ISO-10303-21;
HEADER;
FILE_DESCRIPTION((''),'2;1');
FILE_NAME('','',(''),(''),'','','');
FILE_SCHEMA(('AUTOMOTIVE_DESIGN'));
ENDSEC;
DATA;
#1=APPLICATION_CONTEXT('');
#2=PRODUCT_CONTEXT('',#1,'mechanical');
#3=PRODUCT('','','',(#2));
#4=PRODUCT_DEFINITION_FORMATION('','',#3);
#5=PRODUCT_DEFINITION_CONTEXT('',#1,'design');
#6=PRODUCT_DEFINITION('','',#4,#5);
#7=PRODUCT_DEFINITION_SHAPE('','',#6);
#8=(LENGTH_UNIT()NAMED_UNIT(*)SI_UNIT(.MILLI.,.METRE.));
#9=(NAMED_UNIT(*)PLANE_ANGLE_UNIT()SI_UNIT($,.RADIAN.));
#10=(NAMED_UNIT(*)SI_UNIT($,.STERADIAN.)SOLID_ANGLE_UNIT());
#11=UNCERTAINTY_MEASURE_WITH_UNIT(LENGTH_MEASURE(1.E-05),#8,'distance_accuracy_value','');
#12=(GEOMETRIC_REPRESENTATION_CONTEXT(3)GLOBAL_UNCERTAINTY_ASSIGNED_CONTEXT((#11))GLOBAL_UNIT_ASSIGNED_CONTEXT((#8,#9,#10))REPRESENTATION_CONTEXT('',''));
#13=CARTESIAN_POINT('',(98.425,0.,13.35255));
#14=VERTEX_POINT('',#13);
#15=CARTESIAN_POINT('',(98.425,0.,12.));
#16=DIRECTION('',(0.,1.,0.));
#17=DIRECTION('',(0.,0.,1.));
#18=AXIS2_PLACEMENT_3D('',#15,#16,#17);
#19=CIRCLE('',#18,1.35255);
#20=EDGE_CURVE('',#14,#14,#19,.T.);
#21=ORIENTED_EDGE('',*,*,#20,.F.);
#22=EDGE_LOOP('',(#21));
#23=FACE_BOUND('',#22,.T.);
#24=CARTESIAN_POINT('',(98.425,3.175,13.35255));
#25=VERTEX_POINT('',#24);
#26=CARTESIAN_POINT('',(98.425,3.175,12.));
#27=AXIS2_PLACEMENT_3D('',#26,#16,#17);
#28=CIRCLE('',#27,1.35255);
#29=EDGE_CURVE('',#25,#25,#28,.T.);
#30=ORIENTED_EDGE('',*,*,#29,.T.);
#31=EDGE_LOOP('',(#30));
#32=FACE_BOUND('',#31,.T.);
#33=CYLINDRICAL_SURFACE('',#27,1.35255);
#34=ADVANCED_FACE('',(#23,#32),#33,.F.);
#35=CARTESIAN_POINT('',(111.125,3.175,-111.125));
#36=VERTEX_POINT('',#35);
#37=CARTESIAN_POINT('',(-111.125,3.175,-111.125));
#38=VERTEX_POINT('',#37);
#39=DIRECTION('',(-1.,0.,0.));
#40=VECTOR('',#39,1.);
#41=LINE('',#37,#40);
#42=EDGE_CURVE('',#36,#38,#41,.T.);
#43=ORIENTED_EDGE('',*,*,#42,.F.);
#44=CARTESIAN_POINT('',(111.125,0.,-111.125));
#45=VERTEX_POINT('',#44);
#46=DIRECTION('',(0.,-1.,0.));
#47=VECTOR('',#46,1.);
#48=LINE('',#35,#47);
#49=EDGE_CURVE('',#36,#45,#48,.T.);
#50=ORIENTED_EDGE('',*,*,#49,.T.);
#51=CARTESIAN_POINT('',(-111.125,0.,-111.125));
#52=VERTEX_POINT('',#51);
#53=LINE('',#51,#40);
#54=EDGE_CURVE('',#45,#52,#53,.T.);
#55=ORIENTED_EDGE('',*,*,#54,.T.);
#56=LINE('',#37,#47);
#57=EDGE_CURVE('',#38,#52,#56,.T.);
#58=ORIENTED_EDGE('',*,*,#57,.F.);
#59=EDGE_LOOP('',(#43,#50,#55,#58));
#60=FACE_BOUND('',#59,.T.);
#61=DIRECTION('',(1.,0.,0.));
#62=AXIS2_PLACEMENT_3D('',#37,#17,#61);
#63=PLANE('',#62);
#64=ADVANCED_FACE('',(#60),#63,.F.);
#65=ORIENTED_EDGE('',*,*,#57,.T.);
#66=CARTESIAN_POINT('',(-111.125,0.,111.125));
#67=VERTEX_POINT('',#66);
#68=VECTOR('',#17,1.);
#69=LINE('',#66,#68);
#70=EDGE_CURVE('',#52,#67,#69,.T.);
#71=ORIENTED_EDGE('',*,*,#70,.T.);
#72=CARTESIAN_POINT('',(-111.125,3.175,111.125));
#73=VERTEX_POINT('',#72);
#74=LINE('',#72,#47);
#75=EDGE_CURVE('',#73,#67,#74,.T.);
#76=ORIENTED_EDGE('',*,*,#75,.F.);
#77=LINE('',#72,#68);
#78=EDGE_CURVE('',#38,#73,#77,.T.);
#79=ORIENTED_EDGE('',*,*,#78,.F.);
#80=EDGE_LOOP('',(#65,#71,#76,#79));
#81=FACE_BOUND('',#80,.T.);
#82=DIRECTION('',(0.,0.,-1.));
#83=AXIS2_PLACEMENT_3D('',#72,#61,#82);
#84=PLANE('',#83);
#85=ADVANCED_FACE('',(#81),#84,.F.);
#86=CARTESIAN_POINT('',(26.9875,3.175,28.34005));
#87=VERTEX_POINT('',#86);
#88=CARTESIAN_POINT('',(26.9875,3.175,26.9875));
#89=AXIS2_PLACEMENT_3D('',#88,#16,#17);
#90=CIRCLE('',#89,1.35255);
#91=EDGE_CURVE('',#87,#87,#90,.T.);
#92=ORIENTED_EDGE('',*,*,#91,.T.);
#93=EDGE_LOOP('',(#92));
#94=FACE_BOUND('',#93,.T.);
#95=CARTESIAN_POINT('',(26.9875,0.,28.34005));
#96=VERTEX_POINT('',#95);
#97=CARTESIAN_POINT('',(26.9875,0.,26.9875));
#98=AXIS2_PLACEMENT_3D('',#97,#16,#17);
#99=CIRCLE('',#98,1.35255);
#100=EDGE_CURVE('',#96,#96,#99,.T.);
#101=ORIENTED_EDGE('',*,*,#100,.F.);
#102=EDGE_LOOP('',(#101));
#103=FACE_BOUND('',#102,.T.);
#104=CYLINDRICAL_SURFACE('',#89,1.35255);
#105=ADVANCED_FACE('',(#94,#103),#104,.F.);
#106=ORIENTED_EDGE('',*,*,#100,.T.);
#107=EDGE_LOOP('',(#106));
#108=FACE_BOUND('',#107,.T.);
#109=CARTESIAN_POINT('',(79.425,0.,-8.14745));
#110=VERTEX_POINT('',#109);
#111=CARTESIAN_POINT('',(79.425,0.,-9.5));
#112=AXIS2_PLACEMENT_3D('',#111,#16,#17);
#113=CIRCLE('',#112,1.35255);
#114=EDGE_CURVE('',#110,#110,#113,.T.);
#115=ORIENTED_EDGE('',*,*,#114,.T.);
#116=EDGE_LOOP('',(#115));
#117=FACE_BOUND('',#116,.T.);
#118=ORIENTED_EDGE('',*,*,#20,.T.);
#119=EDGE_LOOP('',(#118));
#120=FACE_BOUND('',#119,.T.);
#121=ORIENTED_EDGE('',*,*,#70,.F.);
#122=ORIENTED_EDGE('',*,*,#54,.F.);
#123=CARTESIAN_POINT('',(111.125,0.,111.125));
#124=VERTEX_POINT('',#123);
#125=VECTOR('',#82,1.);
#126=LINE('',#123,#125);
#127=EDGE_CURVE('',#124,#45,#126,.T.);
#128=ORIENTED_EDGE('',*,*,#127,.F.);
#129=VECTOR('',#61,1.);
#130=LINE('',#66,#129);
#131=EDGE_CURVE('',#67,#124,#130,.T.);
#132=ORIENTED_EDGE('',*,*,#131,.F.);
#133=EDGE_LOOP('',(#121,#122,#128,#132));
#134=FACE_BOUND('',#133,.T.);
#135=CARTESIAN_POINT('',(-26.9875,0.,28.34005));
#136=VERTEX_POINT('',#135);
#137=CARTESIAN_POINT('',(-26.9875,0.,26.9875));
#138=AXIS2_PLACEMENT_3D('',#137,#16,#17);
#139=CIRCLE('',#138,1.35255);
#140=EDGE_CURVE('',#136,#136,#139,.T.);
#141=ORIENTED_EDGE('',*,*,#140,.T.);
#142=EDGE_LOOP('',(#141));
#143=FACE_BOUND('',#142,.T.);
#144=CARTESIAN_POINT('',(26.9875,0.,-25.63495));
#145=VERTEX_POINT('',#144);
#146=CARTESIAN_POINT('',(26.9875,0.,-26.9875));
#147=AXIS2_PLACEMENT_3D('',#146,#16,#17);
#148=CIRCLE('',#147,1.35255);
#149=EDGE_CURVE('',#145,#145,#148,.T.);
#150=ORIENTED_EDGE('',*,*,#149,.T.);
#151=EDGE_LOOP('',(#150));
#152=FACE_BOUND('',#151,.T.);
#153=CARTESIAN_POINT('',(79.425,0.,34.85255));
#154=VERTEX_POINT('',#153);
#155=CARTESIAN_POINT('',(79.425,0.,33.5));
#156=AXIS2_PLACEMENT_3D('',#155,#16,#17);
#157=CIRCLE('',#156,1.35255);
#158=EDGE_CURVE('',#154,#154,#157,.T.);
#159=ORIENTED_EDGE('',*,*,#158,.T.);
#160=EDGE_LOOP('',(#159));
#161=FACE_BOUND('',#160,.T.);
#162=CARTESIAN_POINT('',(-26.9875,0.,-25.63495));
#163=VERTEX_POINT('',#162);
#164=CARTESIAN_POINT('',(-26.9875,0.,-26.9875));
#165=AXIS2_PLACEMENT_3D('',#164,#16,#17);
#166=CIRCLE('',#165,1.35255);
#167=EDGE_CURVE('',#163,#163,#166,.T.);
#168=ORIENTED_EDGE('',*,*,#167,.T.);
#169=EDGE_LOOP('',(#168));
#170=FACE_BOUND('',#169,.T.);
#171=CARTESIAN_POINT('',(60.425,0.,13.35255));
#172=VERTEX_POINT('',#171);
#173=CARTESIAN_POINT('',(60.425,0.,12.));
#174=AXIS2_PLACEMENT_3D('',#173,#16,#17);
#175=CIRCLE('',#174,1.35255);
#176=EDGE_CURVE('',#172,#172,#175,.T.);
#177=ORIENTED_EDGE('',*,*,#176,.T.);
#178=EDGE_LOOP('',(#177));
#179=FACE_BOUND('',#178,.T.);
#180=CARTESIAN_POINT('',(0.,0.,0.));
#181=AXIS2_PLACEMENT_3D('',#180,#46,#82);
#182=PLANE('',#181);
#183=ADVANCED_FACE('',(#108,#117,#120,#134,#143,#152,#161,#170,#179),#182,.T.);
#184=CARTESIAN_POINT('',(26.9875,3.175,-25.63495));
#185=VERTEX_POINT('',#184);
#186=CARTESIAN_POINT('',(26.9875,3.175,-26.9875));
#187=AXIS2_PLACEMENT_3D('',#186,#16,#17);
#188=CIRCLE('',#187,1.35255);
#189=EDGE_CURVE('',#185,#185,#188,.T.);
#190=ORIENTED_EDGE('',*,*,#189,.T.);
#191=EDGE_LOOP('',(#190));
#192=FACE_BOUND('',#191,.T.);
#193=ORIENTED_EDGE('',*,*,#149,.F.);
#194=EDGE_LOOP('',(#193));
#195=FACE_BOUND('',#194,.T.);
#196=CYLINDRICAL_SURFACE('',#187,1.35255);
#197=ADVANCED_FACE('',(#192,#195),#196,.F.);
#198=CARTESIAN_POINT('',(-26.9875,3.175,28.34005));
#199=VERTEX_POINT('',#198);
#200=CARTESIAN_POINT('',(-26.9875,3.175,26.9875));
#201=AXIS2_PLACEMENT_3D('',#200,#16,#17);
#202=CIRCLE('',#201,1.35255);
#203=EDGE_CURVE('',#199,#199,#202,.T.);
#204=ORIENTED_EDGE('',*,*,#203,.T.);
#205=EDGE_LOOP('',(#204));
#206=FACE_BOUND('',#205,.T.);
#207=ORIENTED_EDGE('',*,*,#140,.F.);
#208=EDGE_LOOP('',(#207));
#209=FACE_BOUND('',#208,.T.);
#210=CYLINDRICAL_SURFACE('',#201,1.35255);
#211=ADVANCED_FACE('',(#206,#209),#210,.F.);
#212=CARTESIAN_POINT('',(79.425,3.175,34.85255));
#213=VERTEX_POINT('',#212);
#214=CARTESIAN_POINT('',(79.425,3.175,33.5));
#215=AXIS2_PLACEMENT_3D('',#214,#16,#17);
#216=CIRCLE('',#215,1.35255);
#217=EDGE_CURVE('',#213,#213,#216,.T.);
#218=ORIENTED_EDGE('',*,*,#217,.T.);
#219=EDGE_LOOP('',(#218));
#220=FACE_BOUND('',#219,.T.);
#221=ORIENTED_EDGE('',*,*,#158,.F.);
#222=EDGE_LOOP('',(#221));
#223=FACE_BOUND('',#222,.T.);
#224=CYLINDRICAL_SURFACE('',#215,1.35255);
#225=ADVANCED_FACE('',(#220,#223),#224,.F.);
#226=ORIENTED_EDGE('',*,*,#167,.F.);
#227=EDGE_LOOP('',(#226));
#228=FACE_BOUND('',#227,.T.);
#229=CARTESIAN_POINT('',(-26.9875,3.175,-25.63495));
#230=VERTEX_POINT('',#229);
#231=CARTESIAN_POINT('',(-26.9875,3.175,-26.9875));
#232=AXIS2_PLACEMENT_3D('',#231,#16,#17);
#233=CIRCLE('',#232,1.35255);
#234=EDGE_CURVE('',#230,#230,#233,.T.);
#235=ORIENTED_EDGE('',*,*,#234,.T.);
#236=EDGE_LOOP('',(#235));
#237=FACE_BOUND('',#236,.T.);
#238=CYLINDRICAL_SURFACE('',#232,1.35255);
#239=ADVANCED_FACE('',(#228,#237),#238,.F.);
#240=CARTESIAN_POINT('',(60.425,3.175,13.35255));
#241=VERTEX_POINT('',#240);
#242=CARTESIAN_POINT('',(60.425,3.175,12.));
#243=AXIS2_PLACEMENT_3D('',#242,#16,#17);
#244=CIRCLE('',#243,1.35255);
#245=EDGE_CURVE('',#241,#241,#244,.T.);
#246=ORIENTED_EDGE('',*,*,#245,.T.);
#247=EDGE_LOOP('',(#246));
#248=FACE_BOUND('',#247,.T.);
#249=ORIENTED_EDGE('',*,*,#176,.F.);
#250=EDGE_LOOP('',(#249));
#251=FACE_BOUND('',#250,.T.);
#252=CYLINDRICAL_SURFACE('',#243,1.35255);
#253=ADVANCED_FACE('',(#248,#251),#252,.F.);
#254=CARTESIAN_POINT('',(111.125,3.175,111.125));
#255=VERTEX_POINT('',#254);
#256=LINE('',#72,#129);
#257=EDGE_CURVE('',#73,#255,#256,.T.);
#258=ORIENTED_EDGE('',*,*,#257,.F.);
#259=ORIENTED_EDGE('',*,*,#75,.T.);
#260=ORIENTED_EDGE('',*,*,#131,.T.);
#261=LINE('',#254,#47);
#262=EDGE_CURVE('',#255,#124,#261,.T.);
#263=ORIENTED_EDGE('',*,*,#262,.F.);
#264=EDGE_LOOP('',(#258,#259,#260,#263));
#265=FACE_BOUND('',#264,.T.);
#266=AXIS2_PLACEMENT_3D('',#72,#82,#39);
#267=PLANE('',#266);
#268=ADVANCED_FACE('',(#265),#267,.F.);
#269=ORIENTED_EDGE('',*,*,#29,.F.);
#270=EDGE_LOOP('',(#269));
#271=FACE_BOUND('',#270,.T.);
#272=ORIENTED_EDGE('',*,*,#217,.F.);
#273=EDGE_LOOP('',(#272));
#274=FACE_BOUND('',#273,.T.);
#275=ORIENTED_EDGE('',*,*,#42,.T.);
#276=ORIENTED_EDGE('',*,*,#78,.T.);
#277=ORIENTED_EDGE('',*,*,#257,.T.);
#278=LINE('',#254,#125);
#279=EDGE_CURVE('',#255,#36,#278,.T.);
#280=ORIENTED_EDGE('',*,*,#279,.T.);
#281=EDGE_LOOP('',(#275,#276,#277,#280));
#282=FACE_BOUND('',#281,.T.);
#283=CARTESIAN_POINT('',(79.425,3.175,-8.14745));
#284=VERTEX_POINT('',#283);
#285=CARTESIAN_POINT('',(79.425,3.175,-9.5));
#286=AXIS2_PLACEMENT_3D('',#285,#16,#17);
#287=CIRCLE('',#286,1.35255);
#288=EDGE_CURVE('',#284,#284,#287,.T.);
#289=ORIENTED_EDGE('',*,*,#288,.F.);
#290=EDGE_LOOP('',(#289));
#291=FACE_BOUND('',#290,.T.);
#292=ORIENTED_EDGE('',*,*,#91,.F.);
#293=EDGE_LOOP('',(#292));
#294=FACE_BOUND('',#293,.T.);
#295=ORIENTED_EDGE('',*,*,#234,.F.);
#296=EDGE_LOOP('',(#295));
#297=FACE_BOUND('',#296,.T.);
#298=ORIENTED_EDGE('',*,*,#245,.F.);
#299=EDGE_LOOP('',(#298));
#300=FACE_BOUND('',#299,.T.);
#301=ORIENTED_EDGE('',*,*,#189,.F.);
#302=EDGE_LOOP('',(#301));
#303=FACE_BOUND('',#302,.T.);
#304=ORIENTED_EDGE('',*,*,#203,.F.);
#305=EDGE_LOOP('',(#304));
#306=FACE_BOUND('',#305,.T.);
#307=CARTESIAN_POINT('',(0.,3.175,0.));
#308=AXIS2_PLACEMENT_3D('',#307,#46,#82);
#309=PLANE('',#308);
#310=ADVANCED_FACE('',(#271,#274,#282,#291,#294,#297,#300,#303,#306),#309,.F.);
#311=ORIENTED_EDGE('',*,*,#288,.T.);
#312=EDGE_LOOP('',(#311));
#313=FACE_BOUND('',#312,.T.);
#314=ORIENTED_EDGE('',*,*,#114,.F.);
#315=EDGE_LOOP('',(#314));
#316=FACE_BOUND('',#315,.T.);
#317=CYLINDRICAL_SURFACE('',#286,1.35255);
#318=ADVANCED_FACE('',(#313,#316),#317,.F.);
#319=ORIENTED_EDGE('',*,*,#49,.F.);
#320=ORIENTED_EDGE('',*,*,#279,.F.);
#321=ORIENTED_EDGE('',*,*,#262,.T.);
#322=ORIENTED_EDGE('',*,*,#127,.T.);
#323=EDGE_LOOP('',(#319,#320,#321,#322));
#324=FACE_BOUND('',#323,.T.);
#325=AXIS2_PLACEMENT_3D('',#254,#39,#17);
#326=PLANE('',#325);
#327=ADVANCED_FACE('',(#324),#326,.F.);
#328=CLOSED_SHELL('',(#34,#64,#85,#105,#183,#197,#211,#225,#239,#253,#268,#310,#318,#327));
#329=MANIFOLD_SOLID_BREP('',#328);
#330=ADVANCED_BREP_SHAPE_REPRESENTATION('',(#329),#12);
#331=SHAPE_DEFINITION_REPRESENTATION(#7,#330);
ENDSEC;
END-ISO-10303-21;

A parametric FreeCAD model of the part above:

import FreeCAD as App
import Part
import Sketcher
Q = App.Units.Quantity

doc = App.newDocument("Part")
body = doc.addObject("PartDesign::Body", "Body")

sketch1 = body.newObject("Sketcher::SketchObject", "Sketch")
sketch1.AttachmentSupport = (doc.getObject("XZ_Plane"), [""])
sketch1.MapMode = "FlatFace"
sketch1.addGeometry([
    Part.LineSegment(App.Vector(-111, -111, 0), App.Vector(-111, 111, 0)),
    Part.LineSegment(App.Vector(-111, 111, 0), App.Vector(111, 111, 0)),
    Part.LineSegment(App.Vector(111, 111, 0), App.Vector(111, -111, 0)),
    Part.LineSegment(App.Vector(111, -111, 0), App.Vector(-111, -111, 0)),
], False)
sketch1.addConstraint([
    Sketcher.Constraint("Coincident", 0, 2, 1, 1),
    Sketcher.Constraint("Coincident", 1, 2, 2, 1),
    Sketcher.Constraint("Coincident", 2, 2, 3, 1),
    Sketcher.Constraint("Coincident", 3, 2, 0, 1),
    Sketcher.Constraint("Vertical", 0),
    Sketcher.Constraint("Horizontal", 1),
    Sketcher.Constraint("Vertical", 2),
    Sketcher.Constraint("Horizontal", 3),
    Sketcher.Constraint("Symmetric", 0, 2, 2, 2, -1, 1),
    Sketcher.Constraint("Equal", 3, 0),
    Sketcher.Constraint("DistanceX", 1, 1, 1, 2, Q("8.75 in")),
])
pad1 = body.newObject("PartDesign::Pad", "Pad")
pad1.Profile = sketch1
pad1.Length = Q("0.125 in")
pad1.Reversed = True

sketch2 = body.newObject("Sketcher::SketchObject", "Sketch001")
sketch2.AttachmentSupport = (doc.getObject("XZ_Plane"), [""])
sketch2.MapMode = "FlatFace"
sketch2.AttachmentOffset = App.Placement(App.Vector(0, 0, -0.125 * 25.4), App.Rotation())
sketch2.addGeometry([
    Part.Circle(App.Vector(-27, 27, 0), App.Vector(0, 0, 1), 1.4),
    Part.Circle(App.Vector(-27, -27, 0), App.Vector(0, 0, 1), 1.4),
    Part.Circle(App.Vector(27, -27, 0), App.Vector(0, 0, 1), 1.4),
    Part.Circle(App.Vector(27, 27, 0), App.Vector(0, 0, 1), 1.4),
], False)
sketch2.addConstraint([
    Sketcher.Constraint("Equal", 0, 1),
    Sketcher.Constraint("Equal", 1, 2),
    Sketcher.Constraint("Equal", 2, 3),
    Sketcher.Constraint("Symmetric", 0, 3, 2, 3, -1, 1),
    Sketcher.Constraint("Symmetric", 1, 3, 3, 3, -1, 1),
    Sketcher.Constraint("Symmetric", 1, 3, 2, 3, -2),
    Sketcher.Constraint("Diameter", 0, Q("0.1065 in")),
    Sketcher.Constraint("DistanceX", 0, 3, -1, 1, Q("1.0625 in")),
    Sketcher.Constraint("DistanceY", -1, 1, 0, 3, Q("1.0625 in")),
])
doc.recompute()
hole = body.newObject("PartDesign::Hole", "Hole")
hole.Profile = sketch2
hole.ThreadType = "None"
hole.Diameter = Q("0.1065 in")
hole.DepthType = "ThroughAll"
hole.Reversed = True

sketch3 = body.newObject("Sketcher::SketchObject", "Sketch002")
sketch3.AttachmentSupport = (doc.getObject("XZ_Plane"), [""])
sketch3.MapMode = "FlatFace"
sketch3.AttachmentOffset = App.Placement(App.Vector(0, 0, -0.125 * 25.4), App.Rotation())
sketch3.addGeometry([
    Part.Circle(App.Vector(60.4, 12, 0), App.Vector(0, 0, 1), 1.4),
    Part.Circle(App.Vector(79.4, 33.5, 0), App.Vector(0, 0, 1), 1.4),
    Part.Circle(App.Vector(98.4, 12, 0), App.Vector(0, 0, 1), 1.4),
    Part.Circle(App.Vector(79.4, -9.5, 0), App.Vector(0, 0, 1), 1.4),
], False)
sketch3.addConstraint([
    Sketcher.Constraint("Equal", 0, 1),
    Sketcher.Constraint("Equal", 1, 2),
    Sketcher.Constraint("Equal", 2, 3),
    Sketcher.Constraint("Horizontal", 0, 3, 2, 3),
    Sketcher.Constraint("Vertical", 1, 3, 3, 3),
    Sketcher.Constraint("Diameter", 0, Q("0.1065 in")),
    Sketcher.Constraint("DistanceX", -1, 1, 2, 3, Q("3.875 in")),
    Sketcher.Constraint("DistanceX", -1, 1, 0, 3, Q("60.425 mm")),
    Sketcher.Constraint("DistanceY", -1, 1, 0, 3, Q("12 mm")),
    Sketcher.Constraint("DistanceX", -1, 1, 1, 3, Q("79.425 mm")),
    Sketcher.Constraint("DistanceY", -1, 1, 1, 3, Q("33.5 mm")),
    Sketcher.Constraint("DistanceY", 3, 3, -1, 1, Q("9.5 mm")),
])
doc.recompute()
hole2 = body.newObject("PartDesign::Hole", "Hole001")
hole2.Profile = sketch3
hole2.ThreadType = "None"
hole2.Diameter = Q("0.1065 in")
hole2.DepthType = "ThroughAll"
hole2.Reversed = True

doc.recompute()
